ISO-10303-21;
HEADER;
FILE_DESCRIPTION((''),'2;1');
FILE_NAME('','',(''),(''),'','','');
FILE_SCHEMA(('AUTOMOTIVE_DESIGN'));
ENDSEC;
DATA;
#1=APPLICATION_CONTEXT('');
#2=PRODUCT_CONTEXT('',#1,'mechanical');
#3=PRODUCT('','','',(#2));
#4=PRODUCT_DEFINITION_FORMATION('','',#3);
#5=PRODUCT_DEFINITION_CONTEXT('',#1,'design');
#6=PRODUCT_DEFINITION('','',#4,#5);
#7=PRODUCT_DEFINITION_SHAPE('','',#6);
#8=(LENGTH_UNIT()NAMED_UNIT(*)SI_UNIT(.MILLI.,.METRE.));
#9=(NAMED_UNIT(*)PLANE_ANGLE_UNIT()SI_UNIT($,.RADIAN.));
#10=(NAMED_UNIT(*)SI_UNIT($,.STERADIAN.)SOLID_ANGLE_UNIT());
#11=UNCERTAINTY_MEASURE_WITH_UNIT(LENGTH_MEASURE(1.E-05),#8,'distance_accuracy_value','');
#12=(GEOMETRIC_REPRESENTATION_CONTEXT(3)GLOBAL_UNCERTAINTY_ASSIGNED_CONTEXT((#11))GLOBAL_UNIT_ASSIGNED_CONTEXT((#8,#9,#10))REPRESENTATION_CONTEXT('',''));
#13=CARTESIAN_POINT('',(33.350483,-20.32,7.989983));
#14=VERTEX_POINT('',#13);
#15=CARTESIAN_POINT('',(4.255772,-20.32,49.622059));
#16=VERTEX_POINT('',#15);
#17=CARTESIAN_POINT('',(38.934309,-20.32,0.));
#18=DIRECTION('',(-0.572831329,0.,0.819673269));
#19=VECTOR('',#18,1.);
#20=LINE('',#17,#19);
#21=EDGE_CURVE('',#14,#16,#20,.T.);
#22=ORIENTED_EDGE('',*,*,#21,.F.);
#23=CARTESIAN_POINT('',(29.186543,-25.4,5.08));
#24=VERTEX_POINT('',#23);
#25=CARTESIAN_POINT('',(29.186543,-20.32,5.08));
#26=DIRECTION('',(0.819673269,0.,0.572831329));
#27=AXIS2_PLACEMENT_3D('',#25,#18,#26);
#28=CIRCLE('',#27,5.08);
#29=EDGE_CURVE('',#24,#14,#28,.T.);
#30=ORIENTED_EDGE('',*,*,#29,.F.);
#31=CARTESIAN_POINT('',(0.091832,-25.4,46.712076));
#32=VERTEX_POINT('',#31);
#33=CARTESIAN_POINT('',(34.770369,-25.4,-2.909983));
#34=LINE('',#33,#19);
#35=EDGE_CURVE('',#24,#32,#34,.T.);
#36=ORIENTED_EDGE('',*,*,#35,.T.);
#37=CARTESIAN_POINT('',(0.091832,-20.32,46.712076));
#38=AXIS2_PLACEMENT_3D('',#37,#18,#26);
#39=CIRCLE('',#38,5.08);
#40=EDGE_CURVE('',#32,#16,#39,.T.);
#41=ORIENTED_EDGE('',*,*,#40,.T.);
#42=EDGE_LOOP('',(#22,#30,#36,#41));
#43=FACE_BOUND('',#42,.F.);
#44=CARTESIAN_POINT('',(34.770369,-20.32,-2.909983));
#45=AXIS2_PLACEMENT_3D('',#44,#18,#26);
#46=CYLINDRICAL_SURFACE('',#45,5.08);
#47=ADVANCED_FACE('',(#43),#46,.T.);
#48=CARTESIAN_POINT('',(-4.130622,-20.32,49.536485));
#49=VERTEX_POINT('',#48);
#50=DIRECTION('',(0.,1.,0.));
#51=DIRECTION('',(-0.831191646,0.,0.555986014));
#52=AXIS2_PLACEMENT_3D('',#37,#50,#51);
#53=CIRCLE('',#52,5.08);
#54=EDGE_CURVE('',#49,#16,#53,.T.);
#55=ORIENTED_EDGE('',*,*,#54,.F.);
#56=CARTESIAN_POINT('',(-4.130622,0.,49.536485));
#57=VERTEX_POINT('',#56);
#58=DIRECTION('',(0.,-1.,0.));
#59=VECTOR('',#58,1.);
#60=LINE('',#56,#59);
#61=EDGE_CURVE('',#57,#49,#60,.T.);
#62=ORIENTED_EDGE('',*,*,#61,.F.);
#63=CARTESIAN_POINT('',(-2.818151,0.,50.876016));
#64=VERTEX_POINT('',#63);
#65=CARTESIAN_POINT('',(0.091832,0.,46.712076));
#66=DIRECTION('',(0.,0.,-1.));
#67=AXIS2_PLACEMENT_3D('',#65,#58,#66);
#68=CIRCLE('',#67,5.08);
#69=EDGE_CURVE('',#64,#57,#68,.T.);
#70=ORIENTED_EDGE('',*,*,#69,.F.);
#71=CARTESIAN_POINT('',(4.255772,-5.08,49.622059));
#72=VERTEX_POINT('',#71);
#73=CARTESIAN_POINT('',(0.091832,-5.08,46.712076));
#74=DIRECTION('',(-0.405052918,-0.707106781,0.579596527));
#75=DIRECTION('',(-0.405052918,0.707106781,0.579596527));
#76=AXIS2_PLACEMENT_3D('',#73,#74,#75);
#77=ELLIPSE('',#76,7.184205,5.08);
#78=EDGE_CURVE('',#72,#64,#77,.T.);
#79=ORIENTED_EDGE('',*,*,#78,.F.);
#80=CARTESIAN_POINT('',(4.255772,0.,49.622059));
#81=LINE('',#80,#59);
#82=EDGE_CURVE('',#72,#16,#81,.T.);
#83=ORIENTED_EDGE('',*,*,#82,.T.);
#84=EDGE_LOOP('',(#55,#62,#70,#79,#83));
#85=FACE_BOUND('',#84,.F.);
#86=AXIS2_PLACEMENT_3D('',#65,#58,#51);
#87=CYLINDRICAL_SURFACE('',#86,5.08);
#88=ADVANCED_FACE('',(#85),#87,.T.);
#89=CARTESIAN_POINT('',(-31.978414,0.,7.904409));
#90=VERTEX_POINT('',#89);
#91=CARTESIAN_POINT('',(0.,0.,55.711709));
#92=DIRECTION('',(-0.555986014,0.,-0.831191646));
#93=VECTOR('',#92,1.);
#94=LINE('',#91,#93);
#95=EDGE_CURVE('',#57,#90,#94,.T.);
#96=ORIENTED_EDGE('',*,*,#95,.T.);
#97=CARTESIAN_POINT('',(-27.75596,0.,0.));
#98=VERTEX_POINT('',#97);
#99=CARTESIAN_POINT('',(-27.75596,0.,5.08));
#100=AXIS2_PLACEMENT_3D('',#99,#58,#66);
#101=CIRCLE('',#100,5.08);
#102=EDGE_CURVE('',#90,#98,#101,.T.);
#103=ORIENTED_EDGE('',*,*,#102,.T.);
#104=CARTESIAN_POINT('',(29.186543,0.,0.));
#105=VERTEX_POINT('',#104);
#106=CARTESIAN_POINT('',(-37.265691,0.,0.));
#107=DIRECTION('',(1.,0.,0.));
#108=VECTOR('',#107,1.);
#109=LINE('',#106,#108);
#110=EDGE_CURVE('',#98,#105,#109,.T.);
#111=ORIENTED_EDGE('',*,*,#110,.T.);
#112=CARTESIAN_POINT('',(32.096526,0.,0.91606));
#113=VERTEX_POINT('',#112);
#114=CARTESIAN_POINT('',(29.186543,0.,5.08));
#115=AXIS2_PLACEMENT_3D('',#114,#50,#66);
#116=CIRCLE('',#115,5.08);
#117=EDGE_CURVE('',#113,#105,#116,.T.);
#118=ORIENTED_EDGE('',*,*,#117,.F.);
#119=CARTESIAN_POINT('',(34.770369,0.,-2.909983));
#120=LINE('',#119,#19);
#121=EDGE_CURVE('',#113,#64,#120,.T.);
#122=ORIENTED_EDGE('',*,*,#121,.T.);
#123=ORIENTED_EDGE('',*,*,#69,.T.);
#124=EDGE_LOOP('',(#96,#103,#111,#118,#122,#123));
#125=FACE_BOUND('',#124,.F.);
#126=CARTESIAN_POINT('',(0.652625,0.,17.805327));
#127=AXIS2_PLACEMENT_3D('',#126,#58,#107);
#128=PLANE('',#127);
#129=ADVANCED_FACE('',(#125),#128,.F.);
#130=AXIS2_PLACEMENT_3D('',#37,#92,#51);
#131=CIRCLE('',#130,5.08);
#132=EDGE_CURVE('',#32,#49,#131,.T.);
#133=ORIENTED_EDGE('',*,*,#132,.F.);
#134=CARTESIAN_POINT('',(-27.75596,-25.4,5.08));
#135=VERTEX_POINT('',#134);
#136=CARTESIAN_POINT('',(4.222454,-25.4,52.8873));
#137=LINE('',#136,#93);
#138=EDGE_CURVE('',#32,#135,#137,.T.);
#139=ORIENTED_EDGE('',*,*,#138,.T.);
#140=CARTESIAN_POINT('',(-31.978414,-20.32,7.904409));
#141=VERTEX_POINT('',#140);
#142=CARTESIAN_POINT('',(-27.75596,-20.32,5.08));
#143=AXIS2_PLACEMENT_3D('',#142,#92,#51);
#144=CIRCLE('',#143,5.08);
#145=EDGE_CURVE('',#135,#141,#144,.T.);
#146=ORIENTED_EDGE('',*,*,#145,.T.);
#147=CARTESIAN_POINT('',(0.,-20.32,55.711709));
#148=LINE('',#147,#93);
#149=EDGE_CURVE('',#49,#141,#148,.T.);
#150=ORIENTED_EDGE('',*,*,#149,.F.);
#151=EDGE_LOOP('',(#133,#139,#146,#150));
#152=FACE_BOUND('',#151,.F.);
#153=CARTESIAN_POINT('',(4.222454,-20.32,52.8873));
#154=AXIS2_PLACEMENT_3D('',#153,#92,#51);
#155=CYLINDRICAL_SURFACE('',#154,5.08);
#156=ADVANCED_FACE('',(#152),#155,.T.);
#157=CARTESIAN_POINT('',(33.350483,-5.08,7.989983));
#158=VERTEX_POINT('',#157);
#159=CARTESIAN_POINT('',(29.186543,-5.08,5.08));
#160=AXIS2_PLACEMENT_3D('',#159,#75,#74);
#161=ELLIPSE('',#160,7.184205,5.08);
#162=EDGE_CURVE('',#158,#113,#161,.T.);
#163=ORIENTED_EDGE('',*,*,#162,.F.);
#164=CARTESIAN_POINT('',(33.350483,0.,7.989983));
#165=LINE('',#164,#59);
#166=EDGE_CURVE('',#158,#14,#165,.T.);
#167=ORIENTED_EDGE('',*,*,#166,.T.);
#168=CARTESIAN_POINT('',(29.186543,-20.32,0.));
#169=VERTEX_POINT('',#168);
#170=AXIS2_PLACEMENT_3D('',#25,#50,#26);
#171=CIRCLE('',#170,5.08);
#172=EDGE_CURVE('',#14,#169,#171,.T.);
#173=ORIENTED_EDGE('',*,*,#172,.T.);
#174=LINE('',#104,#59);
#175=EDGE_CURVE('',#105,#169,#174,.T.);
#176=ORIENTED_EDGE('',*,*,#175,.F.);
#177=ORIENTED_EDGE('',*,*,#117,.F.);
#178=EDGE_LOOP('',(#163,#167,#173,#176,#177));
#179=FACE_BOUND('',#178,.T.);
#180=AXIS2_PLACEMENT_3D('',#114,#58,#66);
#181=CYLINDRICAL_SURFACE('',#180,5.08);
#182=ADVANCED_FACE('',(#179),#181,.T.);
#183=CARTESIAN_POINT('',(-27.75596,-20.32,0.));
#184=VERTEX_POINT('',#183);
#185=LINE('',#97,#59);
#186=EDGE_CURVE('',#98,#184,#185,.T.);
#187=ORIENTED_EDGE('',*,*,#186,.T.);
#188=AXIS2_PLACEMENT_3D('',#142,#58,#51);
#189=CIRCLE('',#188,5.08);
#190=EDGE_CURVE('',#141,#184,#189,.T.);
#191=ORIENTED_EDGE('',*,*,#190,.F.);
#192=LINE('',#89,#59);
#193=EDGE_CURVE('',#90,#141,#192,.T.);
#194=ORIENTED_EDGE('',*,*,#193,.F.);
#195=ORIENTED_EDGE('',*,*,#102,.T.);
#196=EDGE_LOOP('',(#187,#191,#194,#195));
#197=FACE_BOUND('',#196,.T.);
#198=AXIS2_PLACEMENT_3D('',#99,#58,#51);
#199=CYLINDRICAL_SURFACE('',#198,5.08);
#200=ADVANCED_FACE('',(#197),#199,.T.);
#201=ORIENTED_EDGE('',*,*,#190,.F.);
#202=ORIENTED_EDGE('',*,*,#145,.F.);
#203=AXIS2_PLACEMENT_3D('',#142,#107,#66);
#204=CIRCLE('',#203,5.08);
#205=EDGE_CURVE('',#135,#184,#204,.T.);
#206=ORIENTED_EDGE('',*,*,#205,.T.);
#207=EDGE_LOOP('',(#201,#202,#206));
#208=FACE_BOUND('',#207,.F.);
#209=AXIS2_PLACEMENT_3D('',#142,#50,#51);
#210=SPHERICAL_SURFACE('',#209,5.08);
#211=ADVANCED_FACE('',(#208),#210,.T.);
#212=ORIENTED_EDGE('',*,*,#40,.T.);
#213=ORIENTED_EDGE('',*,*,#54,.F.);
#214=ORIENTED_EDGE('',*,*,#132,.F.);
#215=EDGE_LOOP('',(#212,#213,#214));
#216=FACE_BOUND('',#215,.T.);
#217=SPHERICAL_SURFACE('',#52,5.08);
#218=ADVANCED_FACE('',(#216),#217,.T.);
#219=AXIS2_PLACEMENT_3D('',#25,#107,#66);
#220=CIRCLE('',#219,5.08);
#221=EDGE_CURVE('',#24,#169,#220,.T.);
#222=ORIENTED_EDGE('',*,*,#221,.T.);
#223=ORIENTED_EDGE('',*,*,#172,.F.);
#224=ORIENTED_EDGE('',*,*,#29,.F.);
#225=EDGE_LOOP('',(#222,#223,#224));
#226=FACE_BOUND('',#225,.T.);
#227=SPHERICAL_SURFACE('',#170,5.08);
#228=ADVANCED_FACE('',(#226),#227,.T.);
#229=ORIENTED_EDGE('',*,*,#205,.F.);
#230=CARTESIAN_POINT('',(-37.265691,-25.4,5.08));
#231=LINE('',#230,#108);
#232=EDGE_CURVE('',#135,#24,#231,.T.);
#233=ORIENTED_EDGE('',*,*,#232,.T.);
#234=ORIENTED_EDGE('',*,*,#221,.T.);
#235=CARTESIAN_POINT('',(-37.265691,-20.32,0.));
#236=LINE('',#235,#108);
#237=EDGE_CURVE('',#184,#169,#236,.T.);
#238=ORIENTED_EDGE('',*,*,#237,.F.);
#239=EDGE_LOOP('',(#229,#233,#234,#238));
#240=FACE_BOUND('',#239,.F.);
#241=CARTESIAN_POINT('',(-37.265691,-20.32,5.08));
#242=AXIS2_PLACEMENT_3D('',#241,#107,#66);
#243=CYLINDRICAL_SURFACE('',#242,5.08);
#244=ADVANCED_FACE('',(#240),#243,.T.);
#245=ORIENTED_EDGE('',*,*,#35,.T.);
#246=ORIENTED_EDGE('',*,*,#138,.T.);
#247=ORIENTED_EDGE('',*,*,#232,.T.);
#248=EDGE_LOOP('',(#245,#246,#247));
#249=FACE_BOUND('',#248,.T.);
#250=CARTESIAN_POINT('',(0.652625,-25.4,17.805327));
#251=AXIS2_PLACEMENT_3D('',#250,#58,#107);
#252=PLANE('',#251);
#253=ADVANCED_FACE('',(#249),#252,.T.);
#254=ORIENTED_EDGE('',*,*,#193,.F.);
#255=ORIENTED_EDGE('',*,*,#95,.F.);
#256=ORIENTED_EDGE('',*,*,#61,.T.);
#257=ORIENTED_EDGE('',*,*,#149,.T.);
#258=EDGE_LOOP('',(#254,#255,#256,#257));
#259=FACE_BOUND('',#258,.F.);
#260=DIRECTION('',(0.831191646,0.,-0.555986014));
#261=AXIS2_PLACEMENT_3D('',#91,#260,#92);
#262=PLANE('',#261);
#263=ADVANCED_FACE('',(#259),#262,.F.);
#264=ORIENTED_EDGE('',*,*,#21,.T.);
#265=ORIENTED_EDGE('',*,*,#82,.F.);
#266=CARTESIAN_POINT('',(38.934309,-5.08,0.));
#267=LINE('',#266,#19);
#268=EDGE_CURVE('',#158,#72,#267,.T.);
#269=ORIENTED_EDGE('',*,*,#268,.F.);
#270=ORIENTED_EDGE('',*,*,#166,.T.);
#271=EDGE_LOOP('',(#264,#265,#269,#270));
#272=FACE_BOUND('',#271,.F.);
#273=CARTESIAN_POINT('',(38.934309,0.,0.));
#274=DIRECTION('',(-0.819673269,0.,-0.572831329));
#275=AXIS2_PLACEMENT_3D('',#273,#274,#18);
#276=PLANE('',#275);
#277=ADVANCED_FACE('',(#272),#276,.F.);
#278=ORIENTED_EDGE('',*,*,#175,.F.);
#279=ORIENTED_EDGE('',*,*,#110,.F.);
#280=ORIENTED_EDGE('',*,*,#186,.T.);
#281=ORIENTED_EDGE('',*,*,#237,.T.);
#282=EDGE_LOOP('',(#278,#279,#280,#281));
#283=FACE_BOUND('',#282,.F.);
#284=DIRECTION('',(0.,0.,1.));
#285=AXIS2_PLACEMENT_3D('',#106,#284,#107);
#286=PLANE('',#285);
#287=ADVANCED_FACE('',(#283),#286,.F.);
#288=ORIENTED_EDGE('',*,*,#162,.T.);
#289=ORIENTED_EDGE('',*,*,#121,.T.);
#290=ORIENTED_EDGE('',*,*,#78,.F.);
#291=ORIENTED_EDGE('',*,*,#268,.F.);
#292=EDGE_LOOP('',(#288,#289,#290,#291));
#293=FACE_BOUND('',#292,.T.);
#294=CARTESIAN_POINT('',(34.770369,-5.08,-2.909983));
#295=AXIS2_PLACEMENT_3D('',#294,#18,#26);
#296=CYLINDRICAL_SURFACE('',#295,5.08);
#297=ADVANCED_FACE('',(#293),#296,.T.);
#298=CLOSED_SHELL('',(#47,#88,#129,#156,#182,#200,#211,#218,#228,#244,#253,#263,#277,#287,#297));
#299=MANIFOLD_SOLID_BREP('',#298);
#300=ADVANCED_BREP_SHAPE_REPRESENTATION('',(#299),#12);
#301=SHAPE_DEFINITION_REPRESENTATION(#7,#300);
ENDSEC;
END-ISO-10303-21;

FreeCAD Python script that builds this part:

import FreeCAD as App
import Part
import Sketcher

V = App.Vector
Q = App.Units.Quantity


def edges_at(feature, points):
    """Names of the edges that pass closest to the given points."""
    edges = feature.Shape.Edges
    near = lambda p: min(range(len(edges)), key=lambda i: edges[i].distToShape(Part.Vertex(*p))[0])
    return sorted({f"Edge{near(p) + 1}" for p in points})


def add_polygon(sketch, points):
    """Adds a closed chain of lines whose ends are joined by coincident constraints."""
    first, n = sketch.GeometryCount, len(points)
    for a, b in zip(points, points[1:] + points[:1]):
        sketch.addGeometry(Part.LineSegment(App.Vector(*a, 0), App.Vector(*b, 0)), False)
    for i in range(n):
        sketch.addConstraint(Sketcher.Constraint("Coincident", first + i, 2, first + (i + 1) % n, 1))

doc = App.newDocument("Part")
params = doc.addObject("Spreadsheet::Sheet", "Params")
for row, (alias, value) in enumerate([
    ("sketch1_width", "3 in"),
    ("pad1_length", "1 in"),
    ("fillet_radius", "0.2 in"),
], start=1):
    params.set(f"A{row}", alias)
    params.set(f"B{row}", "=" + value)
    params.setAlias(f"B{row}", alias)

body = doc.addObject("PartDesign::Body", "Body")

sketch1 = body.newObject("Sketcher::SketchObject", "Sketch")
sketch1.AttachmentSupport = (doc.getObject("XZ_Plane"), [""])
sketch1.MapMode = "FlatFace"
add_polygon(sketch1, [(0, 56), (-37, 0), (39, 0)])
sketch1.addConstraint(Sketcher.Constraint("Horizontal", 1))
sketch1.addConstraint(Sketcher.Constraint("PointOnObject", 0, 2, -1))
sketch1.addConstraint(Sketcher.Constraint("PointOnObject", 2, 2, -2))
sketch1.addConstraint(Sketcher.Constraint("DistanceX", 1, 1, 1, 2, Q("3 in")))
sketch1.addConstraint(Sketcher.Constraint("Distance", 0, Q("67.02631 mm")))
sketch1.addConstraint(Sketcher.Constraint("Distance", 2, Q("67.968191 mm")))
sketch1.setExpression("Constraints[6]", "Params.sketch1_width")
pad1 = body.newObject("PartDesign::Pad", "Pad")
pad1.Profile = sketch1
pad1.setExpression("Length", "Params.pad1_length")
doc.recompute()

fillet = body.newObject("PartDesign::Fillet", "Fillet")
fillet.Base = (pad1, edges_at(pad1, [
    (-18.633, -25.4, 27.856),
    (19.467, -25.4, 27.856),
    (0.834, -25.4, 0),
    (38.934, -12.7, 0),
    (19.467, 0, 27.856),
    (0, -12.7, 55.712),
    (-37.266, -12.7, 0),
]))
fillet.setExpression("Radius", "Params.fillet_radius")

doc.recompute()
